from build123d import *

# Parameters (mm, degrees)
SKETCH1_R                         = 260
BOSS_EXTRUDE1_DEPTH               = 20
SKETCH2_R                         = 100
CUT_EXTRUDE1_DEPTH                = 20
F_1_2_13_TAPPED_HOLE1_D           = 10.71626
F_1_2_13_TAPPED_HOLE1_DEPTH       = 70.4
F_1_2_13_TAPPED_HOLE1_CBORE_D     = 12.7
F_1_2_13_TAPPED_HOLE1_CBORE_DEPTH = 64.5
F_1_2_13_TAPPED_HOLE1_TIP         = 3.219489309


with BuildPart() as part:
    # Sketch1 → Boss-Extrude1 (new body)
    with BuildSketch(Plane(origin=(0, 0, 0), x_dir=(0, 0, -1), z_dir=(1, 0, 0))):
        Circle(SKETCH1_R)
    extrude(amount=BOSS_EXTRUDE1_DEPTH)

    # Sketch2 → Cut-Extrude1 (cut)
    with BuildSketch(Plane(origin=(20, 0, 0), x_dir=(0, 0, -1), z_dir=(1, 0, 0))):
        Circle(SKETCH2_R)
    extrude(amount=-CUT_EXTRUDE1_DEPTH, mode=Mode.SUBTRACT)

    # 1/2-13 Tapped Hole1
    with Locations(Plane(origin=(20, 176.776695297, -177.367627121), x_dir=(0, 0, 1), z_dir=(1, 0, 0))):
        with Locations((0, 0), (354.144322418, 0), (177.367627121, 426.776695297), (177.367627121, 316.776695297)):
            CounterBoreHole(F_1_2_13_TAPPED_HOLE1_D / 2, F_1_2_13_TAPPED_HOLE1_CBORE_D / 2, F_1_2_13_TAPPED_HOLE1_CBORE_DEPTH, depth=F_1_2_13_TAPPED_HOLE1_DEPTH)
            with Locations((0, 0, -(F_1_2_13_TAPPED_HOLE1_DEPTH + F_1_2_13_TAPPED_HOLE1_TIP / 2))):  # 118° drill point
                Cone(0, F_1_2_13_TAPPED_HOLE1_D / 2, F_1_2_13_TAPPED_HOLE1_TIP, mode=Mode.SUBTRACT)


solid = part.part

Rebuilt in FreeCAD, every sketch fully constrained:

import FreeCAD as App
import Part
import Sketcher
Q = App.Units.Quantity

doc = App.newDocument("Part")
params = doc.addObject("Spreadsheet::Sheet", "Params")
for row, (alias, value) in enumerate([
    ("sketch1_diameter", "520 mm"),
    ("pad1_length", "20 mm"),
    ("sketch2_diameter", "200 mm"),
    ("pocket1_length", "20 mm"),
    ("hole_diameter", "10.71626 mm"),
    ("hole_depth", "70.4 mm"),
    ("hole_cbore_diameter", "12.7 mm"),
    ("hole_cbore_depth", "64.5 mm"),
], start=1):
    params.set(f"A{row}", alias)
    params.set(f"B{row}", "=" + value)
    params.setAlias(f"B{row}", alias)

body = doc.addObject("PartDesign::Body", "Body")

# Sketch on YZ plane
sketch1 = doc.addObject("Sketcher::SketchObject", "Sketch")
body.addObject(sketch1)
sketch1.AttachmentSupport = (doc.YZ_Plane, [""])
sketch1.MapMode = "FlatFace"
sketch1.addGeometry(Part.Circle(App.Vector(0, 0, 0), App.Vector(0, 0, 1), 260), False)
sketch1.addConstraint([
    Sketcher.Constraint("Coincident", 0, 3, -1, 1),
    Sketcher.Constraint("Diameter", 0, Q("520 mm")),
])
sketch1.setExpression("Constraints[1]", "Params.sketch1_diameter")
pad1 = doc.addObject("PartDesign::Pad", "Pad")
body.addObject(pad1)
pad1.Profile = sketch1
pad1.setExpression("Length", "Params.pad1_length")

# Sketch on YZ plane
sketch2 = doc.addObject("Sketcher::SketchObject", "Sketch001")
body.addObject(sketch2)
sketch2.AttachmentSupport = (doc.YZ_Plane, [""])
sketch2.MapMode = "FlatFace"
sketch2.AttachmentOffset = App.Placement(App.Vector(0, 0, 20), App.Rotation())
sketch2.addGeometry(Part.Circle(App.Vector(0, 0, 0), App.Vector(0, 0, 1), 100), False)
sketch2.addConstraint([
    Sketcher.Constraint("Coincident", 0, 3, -1, 1),
    Sketcher.Constraint("Diameter", 0, Q("200 mm")),
])
sketch2.setExpression("Constraints[1]", "Params.sketch2_diameter")
pocket1 = doc.addObject("PartDesign::Pocket", "Pocket")
body.addObject(pocket1)
pocket1.Profile = sketch2
pocket1.setExpression("Length", "Params.pocket1_length")

# Sketch on YZ plane
sketch3 = doc.addObject("Sketcher::SketchObject", "Sketch002")
body.addObject(sketch3)
sketch3.AttachmentSupport = (doc.YZ_Plane, [""])
sketch3.MapMode = "FlatFace"
sketch3.AttachmentOffset = App.Placement(App.Vector(0, 0, 20), App.Rotation())
sketch3.addGeometry([
    Part.Circle(App.Vector(177, -177, 0), App.Vector(0, 0, 1), 5),
    Part.Circle(App.Vector(177, 177, 0), App.Vector(0, 0, 1), 5),
    Part.Circle(App.Vector(-250, 0, 0), App.Vector(0, 0, 1), 5),
    Part.Circle(App.Vector(-140, 0, 0), App.Vector(0, 0, 1), 5),
], False)
sketch3.addConstraint([
    Sketcher.Constraint("Equal", 0, 1),
    Sketcher.Constraint("Equal", 1, 2),
    Sketcher.Constraint("Equal", 2, 3),
    Sketcher.Constraint("PointOnObject", 2, 3, -1),
    Sketcher.Constraint("PointOnObject", 3, 3, -1),
    Sketcher.Constraint("Vertical", 0, 3, 1, 3),
    Sketcher.Constraint("DistanceX", 2, 3, -1, 1, Q("250 mm")),
    Sketcher.Constraint("DistanceX", 3, 3, -1, 1, Q("140 mm")),
    Sketcher.Constraint("Diameter", 0, Q("10.71626 mm")),
    Sketcher.Constraint("DistanceX", -1, 1, 0, 3, Q("176.776695 mm")),
    Sketcher.Constraint("DistanceY", 0, 3, -1, 1, Q("177.367627 mm")),
    Sketcher.Constraint("DistanceY", -1, 1, 1, 3, Q("176.776695 mm")),
])
doc.recompute()
hole = doc.addObject("PartDesign::Hole", "Hole")
body.addObject(hole)
hole.Profile = sketch3
hole.ThreadType = "None"
hole.setExpression("Diameter", "Params.hole_diameter")
hole.DepthType = "Dimension"
hole.setExpression("Depth", "Params.hole_depth")
hole.DrillPoint = "Angled"
hole.DrillPointAngle = 118
hole.HoleCutType = "Counterbore"
hole.setExpression("HoleCutDiameter", "Params.hole_cbore_diameter")
hole.setExpression("HoleCutDepth", "Params.hole_cbore_depth")

doc.recompute()
